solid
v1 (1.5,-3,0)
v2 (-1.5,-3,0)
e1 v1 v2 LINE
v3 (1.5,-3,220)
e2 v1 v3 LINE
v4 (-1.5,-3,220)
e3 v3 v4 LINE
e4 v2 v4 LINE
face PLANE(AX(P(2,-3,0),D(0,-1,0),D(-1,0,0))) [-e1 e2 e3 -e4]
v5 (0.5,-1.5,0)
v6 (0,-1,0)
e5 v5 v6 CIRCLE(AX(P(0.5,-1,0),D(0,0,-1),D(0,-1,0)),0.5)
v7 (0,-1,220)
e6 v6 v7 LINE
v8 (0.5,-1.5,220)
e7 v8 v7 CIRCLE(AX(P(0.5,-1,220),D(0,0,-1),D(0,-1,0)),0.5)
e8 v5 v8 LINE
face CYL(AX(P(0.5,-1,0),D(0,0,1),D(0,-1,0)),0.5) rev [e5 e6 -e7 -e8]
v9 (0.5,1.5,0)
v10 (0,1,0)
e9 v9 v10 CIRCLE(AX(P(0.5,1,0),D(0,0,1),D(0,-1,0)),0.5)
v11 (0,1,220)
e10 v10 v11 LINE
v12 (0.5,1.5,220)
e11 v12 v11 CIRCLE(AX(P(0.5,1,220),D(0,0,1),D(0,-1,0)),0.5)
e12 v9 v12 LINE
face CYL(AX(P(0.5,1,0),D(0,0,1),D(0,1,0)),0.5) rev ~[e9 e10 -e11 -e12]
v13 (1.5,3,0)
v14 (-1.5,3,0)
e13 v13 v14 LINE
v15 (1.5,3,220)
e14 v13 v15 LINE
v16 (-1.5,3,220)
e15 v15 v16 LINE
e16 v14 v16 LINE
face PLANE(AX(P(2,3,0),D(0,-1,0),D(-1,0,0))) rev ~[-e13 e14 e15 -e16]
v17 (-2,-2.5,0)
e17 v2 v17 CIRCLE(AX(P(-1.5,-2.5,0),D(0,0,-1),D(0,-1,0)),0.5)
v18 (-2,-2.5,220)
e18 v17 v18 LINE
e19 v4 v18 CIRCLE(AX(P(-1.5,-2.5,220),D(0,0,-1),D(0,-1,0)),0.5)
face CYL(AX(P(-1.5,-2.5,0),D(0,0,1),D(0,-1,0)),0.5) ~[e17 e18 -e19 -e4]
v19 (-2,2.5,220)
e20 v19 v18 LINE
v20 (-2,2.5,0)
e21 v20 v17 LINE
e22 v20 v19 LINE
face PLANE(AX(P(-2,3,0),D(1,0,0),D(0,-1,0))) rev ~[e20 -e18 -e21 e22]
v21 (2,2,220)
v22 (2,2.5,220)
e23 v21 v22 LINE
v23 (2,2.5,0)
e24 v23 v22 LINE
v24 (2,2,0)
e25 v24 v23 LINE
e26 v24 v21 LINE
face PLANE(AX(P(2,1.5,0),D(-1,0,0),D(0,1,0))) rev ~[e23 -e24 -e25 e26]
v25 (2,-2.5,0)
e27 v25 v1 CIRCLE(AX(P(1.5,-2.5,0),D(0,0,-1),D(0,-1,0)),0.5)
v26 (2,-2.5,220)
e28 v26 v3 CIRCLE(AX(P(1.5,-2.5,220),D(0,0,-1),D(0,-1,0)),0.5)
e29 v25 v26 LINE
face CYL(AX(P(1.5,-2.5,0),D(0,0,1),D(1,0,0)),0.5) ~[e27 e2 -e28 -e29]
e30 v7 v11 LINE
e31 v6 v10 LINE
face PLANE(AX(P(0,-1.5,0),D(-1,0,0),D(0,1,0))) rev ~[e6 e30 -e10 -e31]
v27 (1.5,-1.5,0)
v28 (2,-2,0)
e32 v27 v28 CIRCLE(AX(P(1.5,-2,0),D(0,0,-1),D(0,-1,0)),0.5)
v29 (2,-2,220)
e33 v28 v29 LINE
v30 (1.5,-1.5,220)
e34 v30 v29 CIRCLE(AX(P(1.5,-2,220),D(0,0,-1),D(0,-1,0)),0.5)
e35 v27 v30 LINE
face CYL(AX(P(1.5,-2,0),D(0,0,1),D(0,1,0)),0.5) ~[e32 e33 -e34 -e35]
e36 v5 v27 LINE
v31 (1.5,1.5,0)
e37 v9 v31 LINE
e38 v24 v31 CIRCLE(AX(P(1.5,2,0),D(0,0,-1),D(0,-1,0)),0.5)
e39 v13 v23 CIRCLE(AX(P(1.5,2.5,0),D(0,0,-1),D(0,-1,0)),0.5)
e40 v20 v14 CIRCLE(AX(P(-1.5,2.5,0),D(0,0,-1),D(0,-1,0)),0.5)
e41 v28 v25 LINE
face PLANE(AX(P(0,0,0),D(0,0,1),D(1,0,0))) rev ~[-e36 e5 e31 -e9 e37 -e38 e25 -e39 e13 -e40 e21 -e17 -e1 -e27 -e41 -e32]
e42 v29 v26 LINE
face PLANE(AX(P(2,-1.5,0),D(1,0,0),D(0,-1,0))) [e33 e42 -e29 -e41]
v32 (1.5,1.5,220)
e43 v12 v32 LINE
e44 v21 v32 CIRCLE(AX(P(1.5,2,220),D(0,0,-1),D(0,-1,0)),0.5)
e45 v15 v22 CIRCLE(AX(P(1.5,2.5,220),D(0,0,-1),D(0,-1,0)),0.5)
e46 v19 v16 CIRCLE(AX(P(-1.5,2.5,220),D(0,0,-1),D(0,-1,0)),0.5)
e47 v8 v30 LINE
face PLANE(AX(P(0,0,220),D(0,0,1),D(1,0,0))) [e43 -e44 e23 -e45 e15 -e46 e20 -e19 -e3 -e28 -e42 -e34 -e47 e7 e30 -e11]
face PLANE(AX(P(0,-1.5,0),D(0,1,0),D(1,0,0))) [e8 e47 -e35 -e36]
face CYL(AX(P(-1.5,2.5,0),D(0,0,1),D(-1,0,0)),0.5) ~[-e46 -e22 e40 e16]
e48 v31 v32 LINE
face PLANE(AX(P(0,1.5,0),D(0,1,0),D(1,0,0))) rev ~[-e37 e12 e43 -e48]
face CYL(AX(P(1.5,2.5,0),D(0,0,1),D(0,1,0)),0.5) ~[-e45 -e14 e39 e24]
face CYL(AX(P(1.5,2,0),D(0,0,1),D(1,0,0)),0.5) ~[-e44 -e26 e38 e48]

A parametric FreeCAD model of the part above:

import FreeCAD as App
import Part
import Sketcher
from FreeCAD import Vector
Q = App.Units.Quantity


def edges_at(feature, points):
    """Names of the edges that pass closest to the given points."""
    edges = feature.Shape.Edges
    near = lambda p: min(range(len(edges)), key=lambda i: edges[i].distToShape(Part.Vertex(*p))[0])
    return sorted({f"Edge{near(p) + 1}" for p in points})


def add_polygon(sketch, points):
    """Adds a closed chain of lines whose ends are joined by coincident constraints."""
    first, n = sketch.GeometryCount, len(points)
    for a, b in zip(points, points[1:] + points[:1]):
        sketch.addGeometry(Part.LineSegment(App.Vector(*a, 0), App.Vector(*b, 0)), False)
    for i in range(n):
        sketch.addConstraint(Sketcher.Constraint("Coincident", first + i, 2, first + (i + 1) % n, 1))

doc = App.newDocument("Part")
params = doc.addObject("Spreadsheet::Sheet", "Params")
for row, (alias, value) in enumerate([
    ("sketch1_width", "2 mm"),
    ("sketch1_height", "3 mm"),
    ("sketch1_height2", "6 mm"),
    ("pad1_length", "220 mm"),
    ("fillet_radius", "0.5 mm"),
], start=1):
    params.set(f"A{row}", alias)
    params.set(f"B{row}", "=" + value)
    params.setAlias(f"B{row}", alias)

body = doc.addObject("PartDesign::Body", "Body")

# Sketch on XY plane
sketch1 = body.newObject("Sketcher::SketchObject", "Sketch")
sketch1.AttachmentSupport = (doc.getObject("XY_Plane"), [""])
sketch1.MapMode = "FlatFace"
add_polygon(sketch1, [(2, -1.5), (0, -1.5), (0, 1.5), (2, 1.5), (2, 3), (-2, 3), (-2, -3), (2, -3)])  # lines 0-7
sketch1.addConstraint(Sketcher.Constraint("Horizontal", 0))
sketch1.addConstraint(Sketcher.Constraint("Vertical", 1))
sketch1.addConstraint(Sketcher.Constraint("Horizontal", 2))
sketch1.addConstraint(Sketcher.Constraint("Vertical", 3))
sketch1.addConstraint(Sketcher.Constraint("Horizontal", 4))
sketch1.addConstraint(Sketcher.Constraint("Vertical", 5))
sketch1.addConstraint(Sketcher.Constraint("Horizontal", 6))
sketch1.addConstraint(Sketcher.Constraint("Vertical", 7))
sketch1.addConstraint(Sketcher.Constraint("Symmetric", 0, 2, 1, 2, -1, 1))
sketch1.addConstraint(Sketcher.Constraint("Symmetric", 3, 2, 5, 2, -1, 1))
sketch1.addConstraint(Sketcher.Constraint("Vertical", 3, 2, 6, 2))
sketch1.addConstraint(Sketcher.Constraint("DistanceX", 0, 2, 0, 1, Q("2 mm")))
sketch1.addConstraint(Sketcher.Constraint("DistanceY", 1, 1, 1, 2, Q("3 mm")))
sketch1.addConstraint(Sketcher.Constraint("DistanceY", 5, 2, 5, 1, Q("6 mm")))
sketch1.setExpression("Constraints[19]", "Params.sketch1_width")
sketch1.setExpression("Constraints[20]", "Params.sketch1_height")
sketch1.setExpression("Constraints[21]", "Params.sketch1_height2")
pad1 = body.newObject("PartDesign::Pad", "Pad")
pad1.Profile = sketch1
pad1.setExpression("Length", "Params.pad1_length")
doc.recompute()

fillet = body.newObject("PartDesign::Fillet", "Fillet")
fillet.Base = (pad1, edges_at(pad1, [
    (2, -3, 110),
    (-2, -3, 110),
    (2, -1.5, 110),
    (0, -1.5, 110),
    (0, 1.5, 110),
    (2, 1.5, 110),
    (2, 3, 110),
    (-2, 3, 110),
]))
fillet.setExpression("Radius", "Params.fillet_radius")

doc.recompute()
